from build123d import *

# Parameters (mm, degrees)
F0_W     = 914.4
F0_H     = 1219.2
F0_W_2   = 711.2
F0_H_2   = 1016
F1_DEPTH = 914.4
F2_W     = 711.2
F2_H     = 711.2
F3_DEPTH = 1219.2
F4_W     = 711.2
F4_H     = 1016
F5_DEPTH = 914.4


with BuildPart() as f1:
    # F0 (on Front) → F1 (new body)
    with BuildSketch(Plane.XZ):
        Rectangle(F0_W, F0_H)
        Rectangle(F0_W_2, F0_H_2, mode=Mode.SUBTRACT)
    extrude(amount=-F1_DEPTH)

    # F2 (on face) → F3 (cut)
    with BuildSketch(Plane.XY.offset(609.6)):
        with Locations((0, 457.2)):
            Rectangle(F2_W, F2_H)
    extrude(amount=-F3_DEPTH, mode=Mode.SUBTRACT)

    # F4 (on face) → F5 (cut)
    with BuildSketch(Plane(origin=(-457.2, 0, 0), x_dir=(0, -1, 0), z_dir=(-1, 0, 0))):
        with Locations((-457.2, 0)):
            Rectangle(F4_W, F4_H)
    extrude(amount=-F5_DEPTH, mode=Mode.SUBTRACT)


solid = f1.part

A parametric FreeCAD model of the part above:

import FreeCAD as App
import Part
import Sketcher

V = App.Vector
Q = App.Units.Quantity

doc = App.newDocument("Part")
body = doc.addObject("PartDesign::Body", "Body")

# Sketch on XZ plane
sketch1 = body.newObject("Sketcher::SketchObject", "Sketch")
sketch1.AttachmentSupport = (doc.getObject("XZ_Plane"), [""])
sketch1.MapMode = "FlatFace"
sketch1.addGeometry([
    Part.LineSegment(V(-457, 610, 0), V(-457, -610, 0)),  # 0
    Part.LineSegment(V(-457, -610, 0), V(457, -610, 0)),  # 1
    Part.LineSegment(V(457, -610, 0), V(457, 610, 0)),  # 2
    Part.LineSegment(V(457, 610, 0), V(-457, 610, 0)),  # 3
    Part.LineSegment(V(356, -508, 0), V(-356, -508, 0)),  # 4
    Part.LineSegment(V(-356, -508, 0), V(-356, 508, 0)),  # 5
    Part.LineSegment(V(-356, 508, 0), V(356, 508, 0)),  # 6
    Part.LineSegment(V(356, 508, 0), V(356, -508, 0)),  # 7
], False)
sketch1.addConstraint([
    Sketcher.Constraint("Coincident", 0, 2, 1, 1),
    Sketcher.Constraint("Coincident", 1, 2, 2, 1),
    Sketcher.Constraint("Coincident", 2, 2, 3, 1),
    Sketcher.Constraint("Coincident", 3, 2, 0, 1),
    Sketcher.Constraint("Coincident", 4, 2, 5, 1),
    Sketcher.Constraint("Coincident", 5, 2, 6, 1),
    Sketcher.Constraint("Coincident", 6, 2, 7, 1),
    Sketcher.Constraint("Coincident", 7, 2, 4, 1),
    Sketcher.Constraint("Vertical", 0),
    Sketcher.Constraint("Horizontal", 1),
    Sketcher.Constraint("Vertical", 2),
    Sketcher.Constraint("Horizontal", 3),
    Sketcher.Constraint("Horizontal", 4),
    Sketcher.Constraint("Vertical", 5),
    Sketcher.Constraint("Horizontal", 6),
    Sketcher.Constraint("Vertical", 7),
    Sketcher.Constraint("Symmetric", 0, 2, 2, 2, -1, 1),
    Sketcher.Constraint("Symmetric", 4, 2, 6, 2, -1, 1),
    Sketcher.Constraint("DistanceX", 1, 1, 1, 2, Q("36 in")),
    Sketcher.Constraint("DistanceX", 4, 2, 4, 1, Q("28 in")),
    Sketcher.Constraint("DistanceY", 0, 2, 0, 1, Q("48 in")),
    Sketcher.Constraint("DistanceY", 5, 1, 5, 2, Q("40 in")),
])
pad1 = body.newObject("PartDesign::Pad", "Pad")
pad1.Profile = sketch1
pad1.Length = Q("36 in")
pad1.Reversed = True

# Sketch on XY plane
sketch2 = body.newObject("Sketcher::SketchObject", "Sketch001")
sketch2.AttachmentSupport = (doc.getObject("XY_Plane"), [""])
sketch2.MapMode = "FlatFace"
sketch2.AttachmentOffset = App.Placement(V(0, 0, 24 * 25.4), App.Rotation())
sketch2.addGeometry([
    Part.LineSegment(V(-356, 813, 0), V(-356, 102, 0)),
    Part.LineSegment(V(-356, 102, 0), V(356, 102, 0)),
    Part.LineSegment(V(356, 102, 0), V(356, 813, 0)),
    Part.LineSegment(V(356, 813, 0), V(-356, 813, 0)),
], False)
sketch2.addConstraint([
    Sketcher.Constraint("Coincident", 0, 2, 1, 1),
    Sketcher.Constraint("Coincident", 1, 2, 2, 1),
    Sketcher.Constraint("Coincident", 2, 2, 3, 1),
    Sketcher.Constraint("Coincident", 3, 2, 0, 1),
    Sketcher.Constraint("Vertical", 0),
    Sketcher.Constraint("Horizontal", 1),
    Sketcher.Constraint("Vertical", 2),
    Sketcher.Constraint("Horizontal", 3),
    Sketcher.Constraint("Equal", 3, 0),
    Sketcher.Constraint("DistanceX", 1, 1, 1, 2, Q("28 in")),
    Sketcher.Constraint("DistanceX", 0, 2, -1, 1, Q("14 in")),
    Sketcher.Constraint("DistanceY", -1, 1, 0, 2, Q("4 in")),
])
pocket1 = body.newObject("PartDesign::Pocket", "Pocket")
pocket1.Profile = sketch2
pocket1.Length = Q("48 in")

# Sketch on YZ plane
sketch3 = body.newObject("Sketcher::SketchObject", "Sketch002")
sketch3.AttachmentSupport = (doc.getObject("YZ_Plane"), [""])
sketch3.MapMode = "FlatFace"
sketch3.AttachmentOffset = App.Placement(V(0, 0, -18 * 25.4), App.Rotation())
sketch3.addGeometry([
    Part.LineSegment(V(813, 508, 0), V(813, -508, 0)),
    Part.LineSegment(V(813, -508, 0), V(102, -508, 0)),
    Part.LineSegment(V(102, -508, 0), V(102, 508, 0)),
    Part.LineSegment(V(102, 508, 0), V(813, 508, 0)),
], False)
sketch3.addConstraint([
    Sketcher.Constraint("Coincident", 0, 2, 1, 1),
    Sketcher.Constraint("Coincident", 1, 2, 2, 1),
    Sketcher.Constraint("Coincident", 2, 2, 3, 1),
    Sketcher.Constraint("Coincident", 3, 2, 0, 1),
    Sketcher.Constraint("Vertical", 0),
    Sketcher.Constraint("Horizontal", 1),
    Sketcher.Constraint("Vertical", 2),
    Sketcher.Constraint("Horizontal", 3),
    Sketcher.Constraint("DistanceX", 1, 2, 1, 1, Q("28 in")),
    Sketcher.Constraint("DistanceY", 0, 2, 0, 1, Q("40 in")),
    Sketcher.Constraint("DistanceX", -1, 1, 0, 2, Q("32 in")),
    Sketcher.Constraint("DistanceY", 0, 2, -1, 1, Q("20 in")),
])
pocket2 = body.newObject("PartDesign::Pocket", "Pocket001")
pocket2.Profile = sketch3
pocket2.Length = Q("36 in")
pocket2.Reversed = True

doc.recompute()
